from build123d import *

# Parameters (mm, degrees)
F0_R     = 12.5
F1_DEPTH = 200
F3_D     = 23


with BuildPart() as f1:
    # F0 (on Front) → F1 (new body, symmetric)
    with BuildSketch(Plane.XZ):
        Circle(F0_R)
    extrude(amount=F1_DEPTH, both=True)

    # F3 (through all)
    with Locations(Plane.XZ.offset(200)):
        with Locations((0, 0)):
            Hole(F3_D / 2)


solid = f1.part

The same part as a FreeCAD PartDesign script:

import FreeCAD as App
import Part
import Sketcher
Q = App.Units.Quantity

doc = App.newDocument("Part")
body = doc.addObject("PartDesign::Body", "Body")

sketch1 = body.newObject("Sketcher::SketchObject", "Sketch")
sketch1.AttachmentSupport = (doc.getObject("XZ_Plane"), [""])
sketch1.MapMode = "FlatFace"
sketch1.addGeometry(Part.Circle(App.Vector(0, 0, 0), App.Vector(0, 0, 1), 12), False)
sketch1.addConstraint(Sketcher.Constraint("Coincident", 0, 3, -1, 1))
sketch1.addConstraint(Sketcher.Constraint("Diameter", 0, Q("25 mm")))
pad1 = body.newObject("PartDesign::Pad", "Pad")
pad1.Profile = sketch1
pad1.Length = 400
pad1.Midplane = True

sketch2 = body.newObject("Sketcher::SketchObject", "Sketch001")
sketch2.AttachmentSupport = (doc.getObject("XZ_Plane"), [""])
sketch2.MapMode = "FlatFace"
sketch2.AttachmentOffset = App.Placement(App.Vector(0, 0, 200), App.Rotation())
sketch2.addGeometry(Part.Circle(App.Vector(0, 0, 0), App.Vector(0, 0, 1), 12), False)
sketch2.addConstraint(Sketcher.Constraint("Coincident", 0, 3, -1, 1))
sketch2.addConstraint(Sketcher.Constraint("Diameter", 0, Q("23 mm")))
doc.recompute()
hole = body.newObject("PartDesign::Hole", "Hole")
hole.Profile = sketch2
hole.ThreadType = "None"
hole.Diameter = 23
hole.DepthType = "ThroughAll"

doc.recompute()
